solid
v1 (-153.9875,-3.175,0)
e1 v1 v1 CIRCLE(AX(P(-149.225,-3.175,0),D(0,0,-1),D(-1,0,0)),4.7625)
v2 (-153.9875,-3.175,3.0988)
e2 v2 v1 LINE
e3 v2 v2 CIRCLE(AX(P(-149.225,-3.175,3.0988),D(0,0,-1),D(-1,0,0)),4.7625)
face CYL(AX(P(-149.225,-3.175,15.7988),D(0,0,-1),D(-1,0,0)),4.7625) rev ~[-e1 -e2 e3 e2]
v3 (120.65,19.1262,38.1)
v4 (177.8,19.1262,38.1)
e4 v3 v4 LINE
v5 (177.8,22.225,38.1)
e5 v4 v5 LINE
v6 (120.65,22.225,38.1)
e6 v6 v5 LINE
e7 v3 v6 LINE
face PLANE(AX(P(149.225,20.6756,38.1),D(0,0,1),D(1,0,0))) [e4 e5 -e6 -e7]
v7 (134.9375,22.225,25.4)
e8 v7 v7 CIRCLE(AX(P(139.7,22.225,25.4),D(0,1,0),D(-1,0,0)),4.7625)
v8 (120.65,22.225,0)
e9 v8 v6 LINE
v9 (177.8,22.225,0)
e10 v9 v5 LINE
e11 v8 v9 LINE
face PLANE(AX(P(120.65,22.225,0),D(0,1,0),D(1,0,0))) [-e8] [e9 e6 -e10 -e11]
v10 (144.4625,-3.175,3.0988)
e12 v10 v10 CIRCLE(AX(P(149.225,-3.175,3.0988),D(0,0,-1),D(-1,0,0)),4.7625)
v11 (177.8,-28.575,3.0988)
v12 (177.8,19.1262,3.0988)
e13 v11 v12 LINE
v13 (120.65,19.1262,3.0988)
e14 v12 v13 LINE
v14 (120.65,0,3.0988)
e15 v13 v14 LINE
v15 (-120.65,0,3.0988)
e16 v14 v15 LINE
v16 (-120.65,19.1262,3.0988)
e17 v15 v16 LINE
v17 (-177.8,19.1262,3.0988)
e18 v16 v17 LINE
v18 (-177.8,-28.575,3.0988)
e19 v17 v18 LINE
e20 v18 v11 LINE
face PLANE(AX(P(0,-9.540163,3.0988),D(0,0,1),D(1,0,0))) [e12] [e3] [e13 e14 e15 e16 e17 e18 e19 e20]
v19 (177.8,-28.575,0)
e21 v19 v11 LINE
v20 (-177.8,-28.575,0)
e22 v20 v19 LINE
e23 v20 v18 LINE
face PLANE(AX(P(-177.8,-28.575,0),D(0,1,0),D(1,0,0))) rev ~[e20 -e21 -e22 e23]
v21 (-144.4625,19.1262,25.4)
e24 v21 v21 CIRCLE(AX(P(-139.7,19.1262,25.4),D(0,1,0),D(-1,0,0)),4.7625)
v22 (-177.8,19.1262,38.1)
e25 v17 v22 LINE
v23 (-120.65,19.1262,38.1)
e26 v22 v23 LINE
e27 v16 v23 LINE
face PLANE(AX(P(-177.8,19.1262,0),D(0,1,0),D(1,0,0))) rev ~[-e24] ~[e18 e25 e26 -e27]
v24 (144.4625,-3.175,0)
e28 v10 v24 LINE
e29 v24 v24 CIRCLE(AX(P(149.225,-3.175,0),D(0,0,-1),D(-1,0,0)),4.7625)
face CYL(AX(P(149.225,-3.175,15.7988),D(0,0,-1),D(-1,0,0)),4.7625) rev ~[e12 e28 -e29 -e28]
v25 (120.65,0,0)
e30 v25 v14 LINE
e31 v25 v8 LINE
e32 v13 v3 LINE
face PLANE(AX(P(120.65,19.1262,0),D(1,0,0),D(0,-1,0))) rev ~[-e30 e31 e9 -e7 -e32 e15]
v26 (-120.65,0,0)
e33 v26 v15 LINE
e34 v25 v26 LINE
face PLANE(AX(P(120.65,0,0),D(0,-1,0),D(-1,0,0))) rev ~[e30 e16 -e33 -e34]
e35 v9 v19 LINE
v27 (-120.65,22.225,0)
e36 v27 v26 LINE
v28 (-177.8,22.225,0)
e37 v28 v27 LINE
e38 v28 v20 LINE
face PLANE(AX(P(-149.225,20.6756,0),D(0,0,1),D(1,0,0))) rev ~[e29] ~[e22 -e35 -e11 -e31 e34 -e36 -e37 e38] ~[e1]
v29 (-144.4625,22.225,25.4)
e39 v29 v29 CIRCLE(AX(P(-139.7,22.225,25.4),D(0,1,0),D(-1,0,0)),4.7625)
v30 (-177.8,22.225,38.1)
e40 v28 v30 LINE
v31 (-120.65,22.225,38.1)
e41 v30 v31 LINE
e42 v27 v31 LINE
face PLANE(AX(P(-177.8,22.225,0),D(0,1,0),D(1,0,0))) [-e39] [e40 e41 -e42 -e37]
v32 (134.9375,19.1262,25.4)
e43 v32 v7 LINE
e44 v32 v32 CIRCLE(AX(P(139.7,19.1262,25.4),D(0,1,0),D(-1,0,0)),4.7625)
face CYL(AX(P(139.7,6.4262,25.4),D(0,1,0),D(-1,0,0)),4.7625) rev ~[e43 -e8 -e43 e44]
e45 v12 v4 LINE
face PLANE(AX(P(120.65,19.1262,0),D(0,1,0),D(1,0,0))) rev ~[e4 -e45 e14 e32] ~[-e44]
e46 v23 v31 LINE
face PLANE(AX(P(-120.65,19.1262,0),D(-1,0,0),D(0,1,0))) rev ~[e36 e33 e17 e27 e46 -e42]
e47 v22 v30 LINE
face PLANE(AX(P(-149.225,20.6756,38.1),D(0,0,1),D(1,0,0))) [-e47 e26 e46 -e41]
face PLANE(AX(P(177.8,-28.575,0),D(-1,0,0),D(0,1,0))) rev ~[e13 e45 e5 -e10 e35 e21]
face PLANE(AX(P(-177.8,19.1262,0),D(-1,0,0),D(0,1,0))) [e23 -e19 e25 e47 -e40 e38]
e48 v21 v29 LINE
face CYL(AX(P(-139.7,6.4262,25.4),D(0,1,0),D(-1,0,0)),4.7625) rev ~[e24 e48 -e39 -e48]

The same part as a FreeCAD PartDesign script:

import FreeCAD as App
import Part
import Sketcher

V = App.Vector
Q = App.Units.Quantity


def add_polygon(sketch, points):
    """Adds a closed chain of lines whose ends are joined by coincident constraints."""
    first, n = sketch.GeometryCount, len(points)
    for a, b in zip(points, points[1:] + points[:1]):
        sketch.addGeometry(Part.LineSegment(App.Vector(*a, 0), App.Vector(*b, 0)), False)
    for i in range(n):
        sketch.addConstraint(Sketcher.Constraint("Coincident", first + i, 2, first + (i + 1) % n, 1))

doc = App.newDocument("Part")
body = doc.addObject("PartDesign::Body", "Body")

sketch1 = doc.addObject("Sketcher::SketchObject", "Sketch")
body.addObject(sketch1)
sketch1.AttachmentSupport = (doc.XY_Plane, [""])
sketch1.MapMode = "FlatFace"
add_polygon(sketch1, [(121, 0), (-121, 0), (-121, 19), (-178, 19), (-178, -29), (178, -29), (178, 19), (121, 19)])
sketch1.addConstraint([
    Sketcher.Constraint("Horizontal", 0),
    Sketcher.Constraint("Vertical", 1),
    Sketcher.Constraint("Horizontal", 2),
    Sketcher.Constraint("Vertical", 3),
    Sketcher.Constraint("Horizontal", 4),
    Sketcher.Constraint("Vertical", 5),
    Sketcher.Constraint("Horizontal", 6),
    Sketcher.Constraint("Vertical", 7),
    Sketcher.Constraint("Symmetric", 0, 2, 7, 2, -1, 1),
    Sketcher.Constraint("Symmetric", 2, 2, 5, 2, -2),
    Sketcher.Constraint("DistanceX", 4, 1, 4, 2, Q("14 in")),
    Sketcher.Constraint("DistanceX", 0, 2, 0, 1, Q("9.5 in")),
    Sketcher.Constraint("DistanceY", 1, 1, 1, 2, Q("0.753 in")),
    Sketcher.Constraint("DistanceY", 3, 2, 3, 1, Q("1.878 in")),
])
pad1 = doc.addObject("PartDesign::Pad", "Pad")
body.addObject(pad1)
pad1.Profile = sketch1
pad1.Length = Q("0.122 in")

sketch2 = doc.addObject("Sketcher::SketchObject", "Sketch001")
body.addObject(sketch2)
sketch2.AttachmentSupport = (doc.XY_Plane, [""])
sketch2.MapMode = "FlatFace"
add_polygon(sketch2, [(-177.8, 22.2), (-177.8, 19.1), (-120.7, 19.1), (-120.7, 22.2)])
add_polygon(sketch2, [(120.7, 22.2), (120.7, 19.1), (177.8, 19.1), (177.8, 22.2)])
sketch2.addConstraint([
    Sketcher.Constraint("Vertical", 0),
    Sketcher.Constraint("Horizontal", 1),
    Sketcher.Constraint("Vertical", 2),
    Sketcher.Constraint("Horizontal", 3),
    Sketcher.Constraint("Vertical", 4),
    Sketcher.Constraint("Horizontal", 5),
    Sketcher.Constraint("Vertical", 6),
    Sketcher.Constraint("Horizontal", 7),
    Sketcher.Constraint("Symmetric", 1, 2, 4, 2, -2),
    Sketcher.Constraint("Symmetric", 3, 2, 6, 2, -2),
    Sketcher.Constraint("DistanceX", 0, 2, -1, 1, Q("7 in")),
    Sketcher.Constraint("DistanceX", 1, 1, 1, 2, Q("2.25 in")),
    Sketcher.Constraint("DistanceY", 0, 2, 0, 1, Q("0.122 in")),
    Sketcher.Constraint("DistanceY", -1, 1, 0, 2, Q("0.753 in")),
])
pad2 = doc.addObject("PartDesign::Pad", "Pad001")
body.addObject(pad2)
pad2.Profile = sketch2
pad2.Length = Q("1.5 in")

sketch3 = doc.addObject("Sketcher::SketchObject", "Sketch002")
body.addObject(sketch3)
sketch3.AttachmentSupport = (doc.XZ_Plane, [""])
sketch3.MapMode = "FlatFace"
sketch3.AttachmentOffset = App.Placement(V(0, 0, -0.753 * 25.4), App.Rotation())
sketch3.addGeometry([
    Part.Circle(V(-139.7, 25.4, 0), V(0, 0, 1), 4.8),
    Part.Circle(V(139.7, 25.4, 0), V(0, 0, 1), 4.8),
], False)
sketch3.addConstraint([
    Sketcher.Constraint("Equal", 0, 1),
    Sketcher.Constraint("Symmetric", 0, 3, 1, 3, -2),
    Sketcher.Constraint("Diameter", 0, Q("0.375 in")),
    Sketcher.Constraint("DistanceY", -1, 1, 0, 3, Q("1 in")),
    Sketcher.Constraint("DistanceX", 0, 3, 1, 3, Q("11 in")),
])
doc.recompute()
hole = doc.addObject("PartDesign::Hole", "Hole")
body.addObject(hole)
hole.Profile = sketch3
hole.ThreadType = "None"
hole.Diameter = Q("0.375 in")
hole.DepthType = "Dimension"
hole.Depth = Q("0.5 in")
hole.DrillPoint = "Angled"
hole.DrillPointAngle = 118

sketch4 = doc.addObject("Sketcher::SketchObject", "Sketch003")
body.addObject(sketch4)
sketch4.AttachmentSupport = (doc.XY_Plane, [""])
sketch4.MapMode = "FlatFace"
sketch4.AttachmentOffset = App.Placement(V(0, 0, 0.122 * 25.4), App.Rotation())
sketch4.addGeometry([
    Part.Circle(V(-149.2, -3.2, 0), V(0, 0, 1), 4.8),
    Part.Circle(V(149.2, -3.2, 0), V(0, 0, 1), 4.8),
], False)
sketch4.addConstraint([
    Sketcher.Constraint("Equal", 0, 1),
    Sketcher.Constraint("Symmetric", 0, 3, 1, 3, -2),
    Sketcher.Constraint("Diameter", 0, Q("0.375 in")),
    Sketcher.Constraint("DistanceX", 0, 3, 1, 3, Q("11.75 in")),
    Sketcher.Constraint("DistanceY", 0, 3, -1, 1, Q("0.125 in")),
])
doc.recompute()
hole2 = doc.addObject("PartDesign::Hole", "Hole001")
body.addObject(hole2)
hole2.Profile = sketch4
hole2.ThreadType = "None"
hole2.Diameter = Q("0.375 in")
hole2.DepthType = "Dimension"
hole2.Depth = Q("0.5 in")
hole2.DrillPoint = "Angled"
hole2.DrillPointAngle = 118

doc.recompute()
